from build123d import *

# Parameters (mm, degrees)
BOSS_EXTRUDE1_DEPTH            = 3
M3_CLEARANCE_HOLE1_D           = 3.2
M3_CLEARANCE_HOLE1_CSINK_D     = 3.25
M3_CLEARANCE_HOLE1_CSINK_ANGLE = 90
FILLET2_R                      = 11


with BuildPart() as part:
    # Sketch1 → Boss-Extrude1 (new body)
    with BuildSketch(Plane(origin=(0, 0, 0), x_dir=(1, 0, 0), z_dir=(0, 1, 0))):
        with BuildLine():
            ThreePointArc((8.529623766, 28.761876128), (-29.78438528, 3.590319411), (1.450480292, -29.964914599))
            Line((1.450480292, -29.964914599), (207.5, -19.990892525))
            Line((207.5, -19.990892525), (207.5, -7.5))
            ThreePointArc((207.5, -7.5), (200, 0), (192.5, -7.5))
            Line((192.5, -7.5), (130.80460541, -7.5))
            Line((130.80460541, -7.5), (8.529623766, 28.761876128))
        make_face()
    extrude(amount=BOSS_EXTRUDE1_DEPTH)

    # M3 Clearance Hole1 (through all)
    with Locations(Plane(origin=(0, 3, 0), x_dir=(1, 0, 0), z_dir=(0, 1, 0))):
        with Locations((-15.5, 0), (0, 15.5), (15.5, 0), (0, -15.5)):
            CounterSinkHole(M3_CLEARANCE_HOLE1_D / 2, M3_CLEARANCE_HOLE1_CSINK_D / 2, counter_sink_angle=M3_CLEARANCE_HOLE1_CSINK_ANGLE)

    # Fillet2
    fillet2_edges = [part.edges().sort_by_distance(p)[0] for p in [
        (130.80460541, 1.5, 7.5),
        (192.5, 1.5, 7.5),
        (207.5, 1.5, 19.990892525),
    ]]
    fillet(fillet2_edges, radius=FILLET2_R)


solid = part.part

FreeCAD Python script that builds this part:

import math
import FreeCAD as App
import Part
import Sketcher
from FreeCAD import Vector
Q = App.Units.Quantity


def edges_at(feature, points):
    """Names of the edges that pass closest to the given points."""
    edges = feature.Shape.Edges
    near = lambda p: min(range(len(edges)), key=lambda i: edges[i].distToShape(Part.Vertex(*p))[0])
    return sorted({f"Edge{near(p) + 1}" for p in points})

doc = App.newDocument("Part")
body = doc.addObject("PartDesign::Body", "Body")

sketch1 = doc.addObject("Sketcher::SketchObject", "Sketch")
body.addObject(sketch1)
sketch1.AttachmentSupport = (doc.XZ_Plane, [""])
sketch1.MapMode = "FlatFace"
sketch1.addGeometry([
    Part.ArcOfCircle(Part.Circle(Vector(0, 0, 0), Vector(0, 0, 1), 30), math.radians(87.228706), math.radians(286.518253)),
    Part.LineSegment(Vector(1.45048, 29.964915, 0), Vector(207.5, 19.990893, 0)),
    Part.LineSegment(Vector(207.5, 19.990893, 0), Vector(207.5, 7.5, 0)),
    Part.ArcOfCircle(Part.Circle(Vector(200, 7.5, 0), Vector(0, 0, 1), 7.5), math.radians(180), math.radians(360)),
    Part.LineSegment(Vector(192.5, 7.5, 0), Vector(130.804605, 7.5, 0)),
    Part.LineSegment(Vector(130.804605, 7.5, 0), Vector(8.529624, -28.761876, 0)),
], False)
sketch1.addConstraint([
    Sketcher.Constraint("Tangent", 0, 1, 1, 1),
    Sketcher.Constraint("Coincident", 1, 2, 2, 1),
    Sketcher.Constraint("Tangent", 2, 2, 3, 2),
    Sketcher.Constraint("Coincident", 3, 1, 4, 1),
    Sketcher.Constraint("Coincident", 4, 2, 5, 1),
    Sketcher.Constraint("Tangent", 5, 2, 0, 2),
    Sketcher.Constraint("Vertical", 2),
    Sketcher.Constraint("Horizontal", 4),
    Sketcher.Constraint("Coincident", 0, 3, -1, 1),
    Sketcher.Constraint("Horizontal", 2, 2, 3, 1),
    Sketcher.Constraint("Radius", 0, Q("30 mm")),
    Sketcher.Constraint("Radius", 3, Q("7.5 mm")),
    Sketcher.Constraint("DistanceX", -1, 1, 3, 3, Q("200 mm")),
    Sketcher.Constraint("DistanceY", -1, 1, 3, 3, Q("7.5 mm")),
    Sketcher.Constraint("Distance", 5, Q("127.538601 mm")),
    Sketcher.Constraint("Distance", 1, Q("206.290779 mm")),
])
pad1 = doc.addObject("PartDesign::Pad", "Pad")
body.addObject(pad1)
pad1.Profile = sketch1
pad1.Length = 3
pad1.Reversed = True

sketch2 = doc.addObject("Sketcher::SketchObject", "Sketch001")
body.addObject(sketch2)
sketch2.AttachmentSupport = (doc.XZ_Plane, [""])
sketch2.MapMode = "FlatFace"
sketch2.AttachmentOffset = App.Placement(Vector(0, 0, -3), App.Rotation())
sketch2.addGeometry([
    Part.Circle(Vector(-15.5, 0, 0), Vector(0, 0, 1), 1.6),
    Part.Circle(Vector(0, -15.5, 0), Vector(0, 0, 1), 1.6),
    Part.Circle(Vector(15.5, 0, 0), Vector(0, 0, 1), 1.6),
    Part.Circle(Vector(0, 15.5, 0), Vector(0, 0, 1), 1.6),
], False)
sketch2.addConstraint([
    Sketcher.Constraint("Equal", 0, 1),
    Sketcher.Constraint("Equal", 1, 2),
    Sketcher.Constraint("Equal", 2, 3),
    Sketcher.Constraint("Symmetric", 0, 3, 2, 3, -1, 1),
    Sketcher.Constraint("Symmetric", 1, 3, 3, 3, -1, 1),
    Sketcher.Constraint("PointOnObject", 0, 3, -1),
    Sketcher.Constraint("PointOnObject", 1, 3, -2),
    Sketcher.Constraint("Diameter", 0, Q("3.2 mm")),
    Sketcher.Constraint("DistanceX", 0, 3, 2, 3, Q("31 mm")),
    Sketcher.Constraint("DistanceY", 1, 3, 3, 3, Q("31 mm")),
])
doc.recompute()
hole = doc.addObject("PartDesign::Hole", "Hole")
body.addObject(hole)
hole.Profile = sketch2
hole.ThreadType = "None"
hole.Diameter = 3.2
hole.DepthType = "ThroughAll"
hole.HoleCutType = "Countersink"
hole.HoleCutDiameter = 3.25
hole.HoleCutCountersinkAngle = 90
hole.Reversed = True
doc.recompute()

fillet = doc.addObject("PartDesign::Fillet", "Fillet")
body.addObject(fillet)
fillet.Base = (hole, edges_at(hole, [(130.805, 1.5, 7.5), (192.5, 1.5, 7.5), (207.5, 1.5, 19.991)]))
fillet.Radius = 11

doc.recompute()
